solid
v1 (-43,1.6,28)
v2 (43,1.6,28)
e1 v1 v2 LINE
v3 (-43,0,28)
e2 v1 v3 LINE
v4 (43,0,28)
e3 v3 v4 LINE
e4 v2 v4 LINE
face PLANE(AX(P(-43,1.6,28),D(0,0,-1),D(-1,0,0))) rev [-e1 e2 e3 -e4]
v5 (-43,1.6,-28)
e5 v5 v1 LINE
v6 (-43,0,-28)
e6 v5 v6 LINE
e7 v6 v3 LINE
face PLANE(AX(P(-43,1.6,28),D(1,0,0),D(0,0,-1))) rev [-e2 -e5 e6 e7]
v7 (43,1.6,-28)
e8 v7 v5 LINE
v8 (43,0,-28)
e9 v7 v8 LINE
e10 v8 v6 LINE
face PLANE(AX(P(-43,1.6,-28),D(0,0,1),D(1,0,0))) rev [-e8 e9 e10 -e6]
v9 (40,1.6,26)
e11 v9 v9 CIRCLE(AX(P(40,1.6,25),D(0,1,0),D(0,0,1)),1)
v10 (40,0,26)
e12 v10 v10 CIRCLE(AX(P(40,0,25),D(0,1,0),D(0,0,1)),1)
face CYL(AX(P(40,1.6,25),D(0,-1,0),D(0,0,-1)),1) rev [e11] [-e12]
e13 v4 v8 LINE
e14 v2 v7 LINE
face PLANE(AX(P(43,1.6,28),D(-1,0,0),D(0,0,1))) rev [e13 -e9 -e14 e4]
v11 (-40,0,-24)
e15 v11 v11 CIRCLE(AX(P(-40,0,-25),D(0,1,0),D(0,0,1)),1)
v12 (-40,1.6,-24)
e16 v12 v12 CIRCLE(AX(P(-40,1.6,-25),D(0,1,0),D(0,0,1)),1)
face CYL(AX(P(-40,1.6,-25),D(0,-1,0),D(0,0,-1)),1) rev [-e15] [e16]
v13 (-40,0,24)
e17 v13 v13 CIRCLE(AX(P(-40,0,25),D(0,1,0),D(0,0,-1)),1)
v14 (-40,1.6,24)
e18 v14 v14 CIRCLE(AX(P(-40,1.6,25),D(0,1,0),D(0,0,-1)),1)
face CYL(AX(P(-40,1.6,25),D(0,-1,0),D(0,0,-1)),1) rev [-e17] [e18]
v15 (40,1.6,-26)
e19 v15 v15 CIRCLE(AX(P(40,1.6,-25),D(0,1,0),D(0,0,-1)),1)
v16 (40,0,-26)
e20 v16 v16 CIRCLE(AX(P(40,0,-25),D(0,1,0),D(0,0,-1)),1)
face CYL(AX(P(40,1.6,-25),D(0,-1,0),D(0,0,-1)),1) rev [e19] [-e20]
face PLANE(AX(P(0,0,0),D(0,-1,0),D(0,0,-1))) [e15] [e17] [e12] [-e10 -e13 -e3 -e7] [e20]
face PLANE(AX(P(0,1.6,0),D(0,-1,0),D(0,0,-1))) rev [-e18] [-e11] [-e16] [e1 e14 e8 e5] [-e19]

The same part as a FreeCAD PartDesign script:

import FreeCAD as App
import Part
import Sketcher

V = App.Vector


def add_polygon(sketch, points):
    """Adds a closed chain of lines whose ends are joined by coincident constraints."""
    first, n = sketch.GeometryCount, len(points)
    for a, b in zip(points, points[1:] + points[:1]):
        sketch.addGeometry(Part.LineSegment(App.Vector(*a, 0), App.Vector(*b, 0)), False)
    for i in range(n):
        sketch.addConstraint(Sketcher.Constraint("Coincident", first + i, 2, first + (i + 1) % n, 1))

doc = App.newDocument("Part")
body = doc.addObject("PartDesign::Body", "Body")

# Sketch on XZ plane
sketch1 = body.newObject("Sketcher::SketchObject", "Sketch")
sketch1.AttachmentSupport = (doc.getObject("XZ_Plane"), [""])
sketch1.MapMode = "FlatFace"
add_polygon(sketch1, [(-43, -28), (-43, 28), (43, 28), (43, -28)])  # lines 0-3
sketch1.addGeometry(Part.Circle(V(-40, 25, 0), V(0, 0, 1), 1), False)  # 4
sketch1.addGeometry(Part.Circle(V(40, 25, 0), V(0, 0, 1), 1), False)  # 5
sketch1.addGeometry(Part.Circle(V(-40, -25, 0), V(0, 0, 1), 1), False)  # 6
sketch1.addGeometry(Part.Circle(V(40, -25, 0), V(0, 0, 1), 1), False)  # 7
sketch1.addConstraint([
    Sketcher.Constraint("Vertical", 0),
    Sketcher.Constraint("Horizontal", 1),
    Sketcher.Constraint("Vertical", 2),
    Sketcher.Constraint("Horizontal", 3),
    Sketcher.Constraint("Equal", 4, 5),
    Sketcher.Constraint("Equal", 5, 6),
    Sketcher.Constraint("Equal", 6, 7),
    Sketcher.Constraint("Symmetric", 5, 3, 6, 3, -1, 1),
    Sketcher.Constraint("Symmetric", 4, 3, 7, 3, -1, 1),
    Sketcher.Constraint("Symmetric", 0, 2, 2, 2, -1, 1),
    Sketcher.Constraint("Symmetric", 4, 3, 5, 3, -2),
    Sketcher.Constraint("Diameter", 4, 2.0),
    Sketcher.Constraint("DistanceX", 1, 1, 1, 2, 86.0),
    Sketcher.Constraint("DistanceY", 0, 1, 0, 2, 56.0),
    Sketcher.Constraint("DistanceX", 4, 3, -1, 1, 40.0),
    Sketcher.Constraint("DistanceY", -1, 1, 4, 3, 25.0),
])
pad1 = body.newObject("PartDesign::Pad", "Pad")
pad1.Profile = sketch1
pad1.Length = 1.6
pad1.Reversed = True

doc.recompute()
